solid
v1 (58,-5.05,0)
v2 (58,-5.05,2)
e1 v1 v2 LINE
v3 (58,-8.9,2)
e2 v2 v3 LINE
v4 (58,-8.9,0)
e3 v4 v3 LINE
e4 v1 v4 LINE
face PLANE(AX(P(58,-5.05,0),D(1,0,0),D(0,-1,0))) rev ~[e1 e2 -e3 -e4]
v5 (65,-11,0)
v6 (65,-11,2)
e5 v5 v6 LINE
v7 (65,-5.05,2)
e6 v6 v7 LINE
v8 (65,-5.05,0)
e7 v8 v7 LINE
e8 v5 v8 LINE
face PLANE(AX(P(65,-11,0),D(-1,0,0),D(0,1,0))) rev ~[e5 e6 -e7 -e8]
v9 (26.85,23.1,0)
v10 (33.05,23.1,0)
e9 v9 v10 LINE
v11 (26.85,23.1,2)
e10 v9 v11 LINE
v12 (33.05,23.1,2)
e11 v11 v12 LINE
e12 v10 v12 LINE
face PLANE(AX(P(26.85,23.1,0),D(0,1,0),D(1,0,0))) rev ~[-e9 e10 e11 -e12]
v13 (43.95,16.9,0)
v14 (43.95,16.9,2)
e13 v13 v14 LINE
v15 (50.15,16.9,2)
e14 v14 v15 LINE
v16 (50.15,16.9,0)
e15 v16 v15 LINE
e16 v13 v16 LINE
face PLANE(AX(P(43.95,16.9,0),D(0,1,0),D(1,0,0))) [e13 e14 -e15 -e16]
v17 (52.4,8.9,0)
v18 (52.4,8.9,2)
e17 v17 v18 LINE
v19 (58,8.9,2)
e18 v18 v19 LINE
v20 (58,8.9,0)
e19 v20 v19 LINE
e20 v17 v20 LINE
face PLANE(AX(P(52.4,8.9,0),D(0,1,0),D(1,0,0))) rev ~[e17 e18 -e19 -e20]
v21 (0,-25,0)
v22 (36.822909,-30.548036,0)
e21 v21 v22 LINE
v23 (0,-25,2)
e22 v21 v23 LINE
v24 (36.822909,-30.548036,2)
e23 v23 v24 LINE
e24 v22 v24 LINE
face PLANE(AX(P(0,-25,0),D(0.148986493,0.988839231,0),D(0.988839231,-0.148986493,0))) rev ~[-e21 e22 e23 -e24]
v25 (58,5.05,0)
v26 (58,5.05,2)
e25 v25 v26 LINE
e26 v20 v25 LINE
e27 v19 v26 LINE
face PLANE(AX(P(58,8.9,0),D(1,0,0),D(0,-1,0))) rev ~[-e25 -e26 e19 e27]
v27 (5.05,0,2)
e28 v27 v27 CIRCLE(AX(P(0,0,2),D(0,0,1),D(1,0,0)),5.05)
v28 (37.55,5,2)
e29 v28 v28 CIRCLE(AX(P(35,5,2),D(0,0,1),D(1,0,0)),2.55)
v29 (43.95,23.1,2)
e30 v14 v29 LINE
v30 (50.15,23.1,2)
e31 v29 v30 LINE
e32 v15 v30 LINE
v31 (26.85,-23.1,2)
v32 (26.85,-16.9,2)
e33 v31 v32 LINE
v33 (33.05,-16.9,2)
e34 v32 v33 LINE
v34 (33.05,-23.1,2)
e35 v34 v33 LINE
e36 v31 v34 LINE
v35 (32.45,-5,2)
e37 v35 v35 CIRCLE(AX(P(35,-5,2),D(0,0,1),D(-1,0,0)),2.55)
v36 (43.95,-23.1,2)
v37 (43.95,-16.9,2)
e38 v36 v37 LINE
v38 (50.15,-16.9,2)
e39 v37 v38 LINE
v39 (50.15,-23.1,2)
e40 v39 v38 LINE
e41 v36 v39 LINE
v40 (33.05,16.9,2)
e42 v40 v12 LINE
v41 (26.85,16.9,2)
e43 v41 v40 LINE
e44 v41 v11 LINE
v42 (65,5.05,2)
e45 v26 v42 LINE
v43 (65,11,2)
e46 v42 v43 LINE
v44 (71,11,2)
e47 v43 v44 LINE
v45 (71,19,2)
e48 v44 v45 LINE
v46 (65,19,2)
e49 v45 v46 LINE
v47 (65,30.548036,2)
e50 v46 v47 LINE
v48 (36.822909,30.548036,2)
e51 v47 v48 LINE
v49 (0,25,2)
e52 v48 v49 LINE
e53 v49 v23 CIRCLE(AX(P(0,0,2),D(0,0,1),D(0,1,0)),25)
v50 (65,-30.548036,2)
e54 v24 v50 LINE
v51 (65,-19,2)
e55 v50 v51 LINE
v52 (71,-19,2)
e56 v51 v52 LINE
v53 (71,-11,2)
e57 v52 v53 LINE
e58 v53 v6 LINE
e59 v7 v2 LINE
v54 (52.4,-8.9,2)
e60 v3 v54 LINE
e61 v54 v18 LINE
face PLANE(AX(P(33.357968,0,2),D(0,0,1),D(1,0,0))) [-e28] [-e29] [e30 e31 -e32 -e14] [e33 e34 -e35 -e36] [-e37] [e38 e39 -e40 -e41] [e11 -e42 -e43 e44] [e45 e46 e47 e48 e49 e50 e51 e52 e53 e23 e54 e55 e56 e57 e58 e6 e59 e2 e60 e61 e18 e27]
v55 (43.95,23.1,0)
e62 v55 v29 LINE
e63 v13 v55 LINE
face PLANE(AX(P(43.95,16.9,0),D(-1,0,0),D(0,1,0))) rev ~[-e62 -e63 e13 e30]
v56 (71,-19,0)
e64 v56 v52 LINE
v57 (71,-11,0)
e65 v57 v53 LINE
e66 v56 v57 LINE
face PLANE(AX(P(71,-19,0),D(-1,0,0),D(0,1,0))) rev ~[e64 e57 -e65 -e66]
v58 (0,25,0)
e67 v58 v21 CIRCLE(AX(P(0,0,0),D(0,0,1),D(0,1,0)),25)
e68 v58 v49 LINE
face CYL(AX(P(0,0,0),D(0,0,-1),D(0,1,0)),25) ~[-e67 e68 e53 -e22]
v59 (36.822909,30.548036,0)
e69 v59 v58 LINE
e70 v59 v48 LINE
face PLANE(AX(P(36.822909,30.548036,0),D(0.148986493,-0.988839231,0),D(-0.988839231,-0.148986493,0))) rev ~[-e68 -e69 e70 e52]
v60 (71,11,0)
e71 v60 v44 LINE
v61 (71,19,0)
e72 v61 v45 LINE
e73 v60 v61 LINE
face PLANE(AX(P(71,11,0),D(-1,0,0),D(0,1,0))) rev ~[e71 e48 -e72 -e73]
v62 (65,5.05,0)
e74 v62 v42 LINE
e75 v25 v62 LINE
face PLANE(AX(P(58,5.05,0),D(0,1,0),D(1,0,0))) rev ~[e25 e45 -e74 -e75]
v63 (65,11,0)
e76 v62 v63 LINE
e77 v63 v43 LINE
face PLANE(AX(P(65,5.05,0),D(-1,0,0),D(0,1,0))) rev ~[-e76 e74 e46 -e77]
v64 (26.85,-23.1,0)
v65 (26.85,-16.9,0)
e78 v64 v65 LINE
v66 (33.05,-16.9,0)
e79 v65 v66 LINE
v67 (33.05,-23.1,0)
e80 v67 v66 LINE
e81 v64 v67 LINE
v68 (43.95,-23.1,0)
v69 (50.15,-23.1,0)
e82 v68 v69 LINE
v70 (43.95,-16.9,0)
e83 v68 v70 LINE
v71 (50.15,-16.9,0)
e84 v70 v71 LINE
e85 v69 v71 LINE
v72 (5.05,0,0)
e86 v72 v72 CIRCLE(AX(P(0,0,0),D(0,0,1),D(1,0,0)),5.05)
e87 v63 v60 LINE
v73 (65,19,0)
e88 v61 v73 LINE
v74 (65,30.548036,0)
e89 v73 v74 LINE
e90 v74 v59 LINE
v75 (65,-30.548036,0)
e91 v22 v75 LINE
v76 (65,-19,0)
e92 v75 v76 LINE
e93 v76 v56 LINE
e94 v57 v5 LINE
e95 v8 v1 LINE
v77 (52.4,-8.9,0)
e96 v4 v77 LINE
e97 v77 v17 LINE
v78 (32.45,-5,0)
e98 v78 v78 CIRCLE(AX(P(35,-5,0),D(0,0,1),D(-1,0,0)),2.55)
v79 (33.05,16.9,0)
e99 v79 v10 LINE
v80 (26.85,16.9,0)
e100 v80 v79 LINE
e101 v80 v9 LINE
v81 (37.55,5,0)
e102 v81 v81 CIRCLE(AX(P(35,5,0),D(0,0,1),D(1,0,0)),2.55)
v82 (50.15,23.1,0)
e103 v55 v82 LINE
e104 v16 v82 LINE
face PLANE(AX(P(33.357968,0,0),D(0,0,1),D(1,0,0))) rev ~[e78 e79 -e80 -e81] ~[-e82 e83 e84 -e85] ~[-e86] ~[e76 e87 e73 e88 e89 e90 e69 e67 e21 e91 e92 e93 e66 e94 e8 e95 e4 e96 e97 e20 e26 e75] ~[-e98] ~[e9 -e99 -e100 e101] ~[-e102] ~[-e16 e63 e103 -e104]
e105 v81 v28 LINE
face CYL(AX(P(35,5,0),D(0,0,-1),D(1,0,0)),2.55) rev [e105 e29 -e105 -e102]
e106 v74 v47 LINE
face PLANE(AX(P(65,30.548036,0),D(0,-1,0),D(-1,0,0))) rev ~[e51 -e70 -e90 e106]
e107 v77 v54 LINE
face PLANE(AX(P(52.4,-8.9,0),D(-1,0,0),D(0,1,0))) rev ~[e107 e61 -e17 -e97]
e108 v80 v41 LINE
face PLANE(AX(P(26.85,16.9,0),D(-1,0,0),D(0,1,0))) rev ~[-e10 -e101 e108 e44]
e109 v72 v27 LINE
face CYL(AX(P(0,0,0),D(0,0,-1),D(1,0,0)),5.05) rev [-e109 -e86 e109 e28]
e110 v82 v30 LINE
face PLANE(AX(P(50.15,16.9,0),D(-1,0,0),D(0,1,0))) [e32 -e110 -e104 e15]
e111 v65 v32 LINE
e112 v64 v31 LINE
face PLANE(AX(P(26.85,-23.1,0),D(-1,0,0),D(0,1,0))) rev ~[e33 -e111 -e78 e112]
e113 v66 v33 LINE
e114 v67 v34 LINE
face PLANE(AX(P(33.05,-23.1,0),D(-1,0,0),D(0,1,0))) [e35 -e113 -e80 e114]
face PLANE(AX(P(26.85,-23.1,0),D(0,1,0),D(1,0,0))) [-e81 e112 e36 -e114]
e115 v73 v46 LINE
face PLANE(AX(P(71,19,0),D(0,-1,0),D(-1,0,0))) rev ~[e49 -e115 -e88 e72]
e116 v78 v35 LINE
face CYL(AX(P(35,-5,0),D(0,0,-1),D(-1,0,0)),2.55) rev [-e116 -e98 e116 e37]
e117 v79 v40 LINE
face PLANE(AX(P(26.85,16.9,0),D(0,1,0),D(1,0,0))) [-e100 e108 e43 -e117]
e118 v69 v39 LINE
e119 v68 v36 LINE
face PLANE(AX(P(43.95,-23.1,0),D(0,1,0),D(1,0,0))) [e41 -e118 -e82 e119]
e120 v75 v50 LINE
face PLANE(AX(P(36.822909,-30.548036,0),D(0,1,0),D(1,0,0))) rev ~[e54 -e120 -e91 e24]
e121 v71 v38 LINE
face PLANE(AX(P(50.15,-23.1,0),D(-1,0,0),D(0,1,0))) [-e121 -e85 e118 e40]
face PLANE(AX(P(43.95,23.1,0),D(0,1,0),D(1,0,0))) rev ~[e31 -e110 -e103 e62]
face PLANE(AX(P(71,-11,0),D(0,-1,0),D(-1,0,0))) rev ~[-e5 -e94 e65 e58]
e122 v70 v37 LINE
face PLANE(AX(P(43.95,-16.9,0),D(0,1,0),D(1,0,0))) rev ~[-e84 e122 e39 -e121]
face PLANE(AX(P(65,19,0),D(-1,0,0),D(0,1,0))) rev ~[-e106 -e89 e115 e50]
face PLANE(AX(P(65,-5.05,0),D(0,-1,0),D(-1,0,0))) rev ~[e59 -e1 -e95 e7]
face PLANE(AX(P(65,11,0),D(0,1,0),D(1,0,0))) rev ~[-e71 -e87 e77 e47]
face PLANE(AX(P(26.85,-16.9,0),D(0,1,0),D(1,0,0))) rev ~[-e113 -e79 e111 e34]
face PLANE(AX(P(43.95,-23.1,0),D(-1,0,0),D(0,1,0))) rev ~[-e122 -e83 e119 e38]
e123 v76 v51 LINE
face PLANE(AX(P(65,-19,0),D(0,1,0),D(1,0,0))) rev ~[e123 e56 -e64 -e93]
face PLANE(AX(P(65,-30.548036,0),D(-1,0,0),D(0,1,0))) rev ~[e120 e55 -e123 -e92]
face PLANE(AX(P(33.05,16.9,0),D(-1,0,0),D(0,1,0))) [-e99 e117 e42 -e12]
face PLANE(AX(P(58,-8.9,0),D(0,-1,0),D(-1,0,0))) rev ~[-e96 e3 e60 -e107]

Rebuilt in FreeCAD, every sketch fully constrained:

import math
import FreeCAD as App
import Part
import Sketcher
from FreeCAD import Vector

doc = App.newDocument("Part")
body = doc.addObject("PartDesign::Body", "Body")

sketch1 = doc.addObject("Sketcher::SketchObject", "Sketch")
body.addObject(sketch1)
sketch1.AttachmentSupport = (doc.XY_Plane, [""])
sketch1.MapMode = "FlatFace"
sketch1.addGeometry([
    Part.LineSegment(Vector(0, -25, 0), Vector(36.8, -30.5, 0)),
    Part.LineSegment(Vector(36.8, -30.5, 0), Vector(65, -30.5, 0)),
    Part.LineSegment(Vector(65, -30.5, 0), Vector(65, -19, 0)),
    Part.LineSegment(Vector(65, -19, 0), Vector(71, -19, 0)),
    Part.LineSegment(Vector(71, -19, 0), Vector(71, -11, 0)),
    Part.LineSegment(Vector(71, -11, 0), Vector(65, -11, 0)),
    Part.LineSegment(Vector(65, -11, 0), Vector(65, -5, 0)),
    Part.LineSegment(Vector(65, -5, 0), Vector(58, -5, 0)),
    Part.LineSegment(Vector(58, -5, 0), Vector(58, -8.9, 0)),
    Part.LineSegment(Vector(58, -8.9, 0), Vector(52.4, -8.9, 0)),
    Part.LineSegment(Vector(52.4, -8.9, 0), Vector(52.4, 8.9, 0)),
    Part.LineSegment(Vector(52.4, 8.9, 0), Vector(58, 8.9, 0)),
    Part.LineSegment(Vector(58, 8.9, 0), Vector(58, 5, 0)),
    Part.LineSegment(Vector(58, 5, 0), Vector(65, 5, 0)),
    Part.LineSegment(Vector(65, 5, 0), Vector(65, 11, 0)),
    Part.LineSegment(Vector(65, 11, 0), Vector(71, 11, 0)),
    Part.LineSegment(Vector(71, 11, 0), Vector(71, 19, 0)),
    Part.LineSegment(Vector(71, 19, 0), Vector(65, 19, 0)),
    Part.LineSegment(Vector(65, 19, 0), Vector(65, 30.5, 0)),
    Part.LineSegment(Vector(65, 30.5, 0), Vector(36.8, 30.5, 0)),
    Part.LineSegment(Vector(36.8, 30.5, 0), Vector(0, 25, 0)),
    Part.ArcOfCircle(Part.Circle(Vector(0, 0, 0), Vector(0, 0, 1), 25), math.radians(90), math.radians(270)),
    Part.LineSegment(Vector(33, -23.1, 0), Vector(26.9, -23.1, 0)),
    Part.LineSegment(Vector(26.9, -23.1, 0), Vector(26.9, -16.9, 0)),
    Part.LineSegment(Vector(26.9, -16.9, 0), Vector(33, -16.9, 0)),
    Part.LineSegment(Vector(33, -16.9, 0), Vector(33, -23.1, 0)),
    Part.LineSegment(Vector(50.1, -23.1, 0), Vector(44, -23.1, 0)),
    Part.LineSegment(Vector(44, -23.1, 0), Vector(44, -16.9, 0)),
    Part.LineSegment(Vector(44, -16.9, 0), Vector(50.1, -16.9, 0)),
    Part.LineSegment(Vector(50.1, -16.9, 0), Vector(50.1, -23.1, 0)),
    Part.Circle(Vector(35, -5, 0), Vector(0, 0, 1), 2.5),
    Part.Circle(Vector(0, 0, 0), Vector(0, 0, 1), 5),
    Part.Circle(Vector(35, 5, 0), Vector(0, 0, 1), 2.5),
    Part.LineSegment(Vector(33, 16.9, 0), Vector(26.9, 16.9, 0)),
    Part.LineSegment(Vector(26.9, 16.9, 0), Vector(26.9, 23.1, 0)),
    Part.LineSegment(Vector(26.9, 23.1, 0), Vector(33, 23.1, 0)),
    Part.LineSegment(Vector(33, 23.1, 0), Vector(33, 16.9, 0)),
    Part.LineSegment(Vector(50.1, 16.9, 0), Vector(44, 16.9, 0)),
    Part.LineSegment(Vector(44, 16.9, 0), Vector(44, 23.1, 0)),
    Part.LineSegment(Vector(44, 23.1, 0), Vector(50.1, 23.1, 0)),
    Part.LineSegment(Vector(50.1, 23.1, 0), Vector(50.1, 16.9, 0)),
], False)
sketch1.addConstraint([
    Sketcher.Constraint("Coincident", 0, 2, 1, 1),
    Sketcher.Constraint("Coincident", 1, 2, 2, 1),
    Sketcher.Constraint("Coincident", 2, 2, 3, 1),
    Sketcher.Constraint("Coincident", 3, 2, 4, 1),
    Sketcher.Constraint("Coincident", 4, 2, 5, 1),
    Sketcher.Constraint("Coincident", 5, 2, 6, 1),
    Sketcher.Constraint("Coincident", 6, 2, 7, 1),
    Sketcher.Constraint("Coincident", 7, 2, 8, 1),
    Sketcher.Constraint("Coincident", 8, 2, 9, 1),
    Sketcher.Constraint("Coincident", 9, 2, 10, 1),
    Sketcher.Constraint("Coincident", 10, 2, 11, 1),
    Sketcher.Constraint("Coincident", 11, 2, 12, 1),
    Sketcher.Constraint("Coincident", 12, 2, 13, 1),
    Sketcher.Constraint("Coincident", 13, 2, 14, 1),
    Sketcher.Constraint("Coincident", 14, 2, 15, 1),
    Sketcher.Constraint("Coincident", 15, 2, 16, 1),
    Sketcher.Constraint("Coincident", 16, 2, 17, 1),
    Sketcher.Constraint("Coincident", 17, 2, 18, 1),
    Sketcher.Constraint("Coincident", 18, 2, 19, 1),
    Sketcher.Constraint("Coincident", 19, 2, 20, 1),
    Sketcher.Constraint("Coincident", 20, 2, 21, 1),
    Sketcher.Constraint("Coincident", 21, 2, 0, 1),
    Sketcher.Constraint("Coincident", 22, 2, 23, 1),
    Sketcher.Constraint("Coincident", 23, 2, 24, 1),
    Sketcher.Constraint("Coincident", 24, 2, 25, 1),
    Sketcher.Constraint("Coincident", 25, 2, 22, 1),
    Sketcher.Constraint("Coincident", 26, 2, 27, 1),
    Sketcher.Constraint("Coincident", 27, 2, 28, 1),
    Sketcher.Constraint("Coincident", 28, 2, 29, 1),
    Sketcher.Constraint("Coincident", 29, 2, 26, 1),
    Sketcher.Constraint("Coincident", 33, 2, 34, 1),
    Sketcher.Constraint("Coincident", 34, 2, 35, 1),
    Sketcher.Constraint("Coincident", 35, 2, 36, 1),
    Sketcher.Constraint("Coincident", 36, 2, 33, 1),
    Sketcher.Constraint("Coincident", 37, 2, 38, 1),
    Sketcher.Constraint("Coincident", 38, 2, 39, 1),
    Sketcher.Constraint("Coincident", 39, 2, 40, 1),
    Sketcher.Constraint("Coincident", 40, 2, 37, 1),
    Sketcher.Constraint("Horizontal", 1),
    Sketcher.Constraint("Vertical", 2),
    Sketcher.Constraint("Horizontal", 3),
    Sketcher.Constraint("Vertical", 4),
    Sketcher.Constraint("Horizontal", 5),
    Sketcher.Constraint("Vertical", 6),
    Sketcher.Constraint("Horizontal", 7),
    Sketcher.Constraint("Vertical", 8),
    Sketcher.Constraint("Horizontal", 9),
    Sketcher.Constraint("Vertical", 10),
    Sketcher.Constraint("Horizontal", 11),
    Sketcher.Constraint("Vertical", 12),
    Sketcher.Constraint("Horizontal", 13),
    Sketcher.Constraint("Vertical", 14),
    Sketcher.Constraint("Horizontal", 15),
    Sketcher.Constraint("Vertical", 16),
    Sketcher.Constraint("Horizontal", 17),
    Sketcher.Constraint("Vertical", 18),
    Sketcher.Constraint("Horizontal", 19),
    Sketcher.Constraint("Horizontal", 22),
    Sketcher.Constraint("Vertical", 23),
    Sketcher.Constraint("Horizontal", 24),
    Sketcher.Constraint("Vertical", 25),
    Sketcher.Constraint("Horizontal", 26),
    Sketcher.Constraint("Vertical", 27),
    Sketcher.Constraint("Horizontal", 28),
    Sketcher.Constraint("Vertical", 29),
    Sketcher.Constraint("Horizontal", 33),
    Sketcher.Constraint("Vertical", 34),
    Sketcher.Constraint("Horizontal", 35),
    Sketcher.Constraint("Vertical", 36),
    Sketcher.Constraint("Horizontal", 37),
    Sketcher.Constraint("Vertical", 38),
    Sketcher.Constraint("Horizontal", 39),
    Sketcher.Constraint("Vertical", 40),
    Sketcher.Constraint("Coincident", 21, 3, -1, 1),
    Sketcher.Constraint("Coincident", 31, 3, -1, 1),
    Sketcher.Constraint("Equal", 30, 32),
    Sketcher.Constraint("Symmetric", 30, 3, 32, 3, -1),
    Sketcher.Constraint("Symmetric", 8, 2, 11, 2, -1),
    Sketcher.Constraint("Symmetric", 6, 2, 13, 2, -1),
    Sketcher.Constraint("Symmetric", 4, 2, 15, 2, -1),
    Sketcher.Constraint("Symmetric", 2, 2, 17, 2, -1),
    Sketcher.Constraint("Symmetric", 0, 2, 19, 2, -1),
    Sketcher.Constraint("Symmetric", 23, 2, 33, 2, -1),
    Sketcher.Constraint("Symmetric", 25, 2, 35, 2, -1),
    Sketcher.Constraint("Symmetric", 27, 2, 37, 2, -1),
    Sketcher.Constraint("Symmetric", 29, 2, 39, 2, -1),
    Sketcher.Constraint("PointOnObject", 20, 2, -2),
    Sketcher.Constraint("PointOnObject", 21, 2, -2),
    Sketcher.Constraint("Horizontal", 25, 2, 26, 2),
    Sketcher.Constraint("Horizontal", 24, 2, 27, 2),
    Sketcher.Constraint("Vertical", 2, 2, 5, 2),
    Sketcher.Constraint("Equal", 24, 26),
    Sketcher.Constraint("Equal", 39, 23),
    Sketcher.Constraint("Radius", 21, 25.0),
    Sketcher.Constraint("Diameter", 30, 5.1),
    Sketcher.Constraint("Diameter", 31, 10.1),
    Sketcher.Constraint("DistanceX", 3, 1, 3, 2, 6.0),
    Sketcher.Constraint("DistanceX", 7, 2, 7, 1, 7.0),
    Sketcher.Constraint("DistanceY", 4, 1, 4, 2, 8.0),
    Sketcher.Constraint("DistanceX", 9, 2, 9, 1, 5.6),
    Sketcher.Constraint("DistanceX", 22, 2, 22, 1, 6.2),
    Sketcher.Constraint("DistanceY", 10, 1, 10, 2, 17.8),
    Sketcher.Constraint("DistanceX", -1, 1, 30, 3, 35.0),
    Sketcher.Constraint("DistanceY", 30, 3, -1, 1, 5.0),
    Sketcher.Constraint("DistanceX", -1, 1, 1, 2, 65.0),
    Sketcher.Constraint("DistanceY", 2, 2, -1, 1, 19.0),
    Sketcher.Constraint("DistanceY", 23, 2, 9, 2, 8.0),
    Sketcher.Constraint("DistanceY", 6, 1, 6, 2, 5.95),
    Sketcher.Constraint("DistanceX", 25, 2, 26, 2, 10.9),
    Sketcher.Constraint("DistanceX", -1, 1, 22, 2, 26.85),
    Sketcher.Constraint("DistanceX", 1, 1, 1, 2, 28.177091),
    Sketcher.Constraint("Distance", 0, 37.238519),
])
pad1 = doc.addObject("PartDesign::Pad", "Pad")
body.addObject(pad1)
pad1.Profile = sketch1
pad1.Length = 2

doc.recompute()
